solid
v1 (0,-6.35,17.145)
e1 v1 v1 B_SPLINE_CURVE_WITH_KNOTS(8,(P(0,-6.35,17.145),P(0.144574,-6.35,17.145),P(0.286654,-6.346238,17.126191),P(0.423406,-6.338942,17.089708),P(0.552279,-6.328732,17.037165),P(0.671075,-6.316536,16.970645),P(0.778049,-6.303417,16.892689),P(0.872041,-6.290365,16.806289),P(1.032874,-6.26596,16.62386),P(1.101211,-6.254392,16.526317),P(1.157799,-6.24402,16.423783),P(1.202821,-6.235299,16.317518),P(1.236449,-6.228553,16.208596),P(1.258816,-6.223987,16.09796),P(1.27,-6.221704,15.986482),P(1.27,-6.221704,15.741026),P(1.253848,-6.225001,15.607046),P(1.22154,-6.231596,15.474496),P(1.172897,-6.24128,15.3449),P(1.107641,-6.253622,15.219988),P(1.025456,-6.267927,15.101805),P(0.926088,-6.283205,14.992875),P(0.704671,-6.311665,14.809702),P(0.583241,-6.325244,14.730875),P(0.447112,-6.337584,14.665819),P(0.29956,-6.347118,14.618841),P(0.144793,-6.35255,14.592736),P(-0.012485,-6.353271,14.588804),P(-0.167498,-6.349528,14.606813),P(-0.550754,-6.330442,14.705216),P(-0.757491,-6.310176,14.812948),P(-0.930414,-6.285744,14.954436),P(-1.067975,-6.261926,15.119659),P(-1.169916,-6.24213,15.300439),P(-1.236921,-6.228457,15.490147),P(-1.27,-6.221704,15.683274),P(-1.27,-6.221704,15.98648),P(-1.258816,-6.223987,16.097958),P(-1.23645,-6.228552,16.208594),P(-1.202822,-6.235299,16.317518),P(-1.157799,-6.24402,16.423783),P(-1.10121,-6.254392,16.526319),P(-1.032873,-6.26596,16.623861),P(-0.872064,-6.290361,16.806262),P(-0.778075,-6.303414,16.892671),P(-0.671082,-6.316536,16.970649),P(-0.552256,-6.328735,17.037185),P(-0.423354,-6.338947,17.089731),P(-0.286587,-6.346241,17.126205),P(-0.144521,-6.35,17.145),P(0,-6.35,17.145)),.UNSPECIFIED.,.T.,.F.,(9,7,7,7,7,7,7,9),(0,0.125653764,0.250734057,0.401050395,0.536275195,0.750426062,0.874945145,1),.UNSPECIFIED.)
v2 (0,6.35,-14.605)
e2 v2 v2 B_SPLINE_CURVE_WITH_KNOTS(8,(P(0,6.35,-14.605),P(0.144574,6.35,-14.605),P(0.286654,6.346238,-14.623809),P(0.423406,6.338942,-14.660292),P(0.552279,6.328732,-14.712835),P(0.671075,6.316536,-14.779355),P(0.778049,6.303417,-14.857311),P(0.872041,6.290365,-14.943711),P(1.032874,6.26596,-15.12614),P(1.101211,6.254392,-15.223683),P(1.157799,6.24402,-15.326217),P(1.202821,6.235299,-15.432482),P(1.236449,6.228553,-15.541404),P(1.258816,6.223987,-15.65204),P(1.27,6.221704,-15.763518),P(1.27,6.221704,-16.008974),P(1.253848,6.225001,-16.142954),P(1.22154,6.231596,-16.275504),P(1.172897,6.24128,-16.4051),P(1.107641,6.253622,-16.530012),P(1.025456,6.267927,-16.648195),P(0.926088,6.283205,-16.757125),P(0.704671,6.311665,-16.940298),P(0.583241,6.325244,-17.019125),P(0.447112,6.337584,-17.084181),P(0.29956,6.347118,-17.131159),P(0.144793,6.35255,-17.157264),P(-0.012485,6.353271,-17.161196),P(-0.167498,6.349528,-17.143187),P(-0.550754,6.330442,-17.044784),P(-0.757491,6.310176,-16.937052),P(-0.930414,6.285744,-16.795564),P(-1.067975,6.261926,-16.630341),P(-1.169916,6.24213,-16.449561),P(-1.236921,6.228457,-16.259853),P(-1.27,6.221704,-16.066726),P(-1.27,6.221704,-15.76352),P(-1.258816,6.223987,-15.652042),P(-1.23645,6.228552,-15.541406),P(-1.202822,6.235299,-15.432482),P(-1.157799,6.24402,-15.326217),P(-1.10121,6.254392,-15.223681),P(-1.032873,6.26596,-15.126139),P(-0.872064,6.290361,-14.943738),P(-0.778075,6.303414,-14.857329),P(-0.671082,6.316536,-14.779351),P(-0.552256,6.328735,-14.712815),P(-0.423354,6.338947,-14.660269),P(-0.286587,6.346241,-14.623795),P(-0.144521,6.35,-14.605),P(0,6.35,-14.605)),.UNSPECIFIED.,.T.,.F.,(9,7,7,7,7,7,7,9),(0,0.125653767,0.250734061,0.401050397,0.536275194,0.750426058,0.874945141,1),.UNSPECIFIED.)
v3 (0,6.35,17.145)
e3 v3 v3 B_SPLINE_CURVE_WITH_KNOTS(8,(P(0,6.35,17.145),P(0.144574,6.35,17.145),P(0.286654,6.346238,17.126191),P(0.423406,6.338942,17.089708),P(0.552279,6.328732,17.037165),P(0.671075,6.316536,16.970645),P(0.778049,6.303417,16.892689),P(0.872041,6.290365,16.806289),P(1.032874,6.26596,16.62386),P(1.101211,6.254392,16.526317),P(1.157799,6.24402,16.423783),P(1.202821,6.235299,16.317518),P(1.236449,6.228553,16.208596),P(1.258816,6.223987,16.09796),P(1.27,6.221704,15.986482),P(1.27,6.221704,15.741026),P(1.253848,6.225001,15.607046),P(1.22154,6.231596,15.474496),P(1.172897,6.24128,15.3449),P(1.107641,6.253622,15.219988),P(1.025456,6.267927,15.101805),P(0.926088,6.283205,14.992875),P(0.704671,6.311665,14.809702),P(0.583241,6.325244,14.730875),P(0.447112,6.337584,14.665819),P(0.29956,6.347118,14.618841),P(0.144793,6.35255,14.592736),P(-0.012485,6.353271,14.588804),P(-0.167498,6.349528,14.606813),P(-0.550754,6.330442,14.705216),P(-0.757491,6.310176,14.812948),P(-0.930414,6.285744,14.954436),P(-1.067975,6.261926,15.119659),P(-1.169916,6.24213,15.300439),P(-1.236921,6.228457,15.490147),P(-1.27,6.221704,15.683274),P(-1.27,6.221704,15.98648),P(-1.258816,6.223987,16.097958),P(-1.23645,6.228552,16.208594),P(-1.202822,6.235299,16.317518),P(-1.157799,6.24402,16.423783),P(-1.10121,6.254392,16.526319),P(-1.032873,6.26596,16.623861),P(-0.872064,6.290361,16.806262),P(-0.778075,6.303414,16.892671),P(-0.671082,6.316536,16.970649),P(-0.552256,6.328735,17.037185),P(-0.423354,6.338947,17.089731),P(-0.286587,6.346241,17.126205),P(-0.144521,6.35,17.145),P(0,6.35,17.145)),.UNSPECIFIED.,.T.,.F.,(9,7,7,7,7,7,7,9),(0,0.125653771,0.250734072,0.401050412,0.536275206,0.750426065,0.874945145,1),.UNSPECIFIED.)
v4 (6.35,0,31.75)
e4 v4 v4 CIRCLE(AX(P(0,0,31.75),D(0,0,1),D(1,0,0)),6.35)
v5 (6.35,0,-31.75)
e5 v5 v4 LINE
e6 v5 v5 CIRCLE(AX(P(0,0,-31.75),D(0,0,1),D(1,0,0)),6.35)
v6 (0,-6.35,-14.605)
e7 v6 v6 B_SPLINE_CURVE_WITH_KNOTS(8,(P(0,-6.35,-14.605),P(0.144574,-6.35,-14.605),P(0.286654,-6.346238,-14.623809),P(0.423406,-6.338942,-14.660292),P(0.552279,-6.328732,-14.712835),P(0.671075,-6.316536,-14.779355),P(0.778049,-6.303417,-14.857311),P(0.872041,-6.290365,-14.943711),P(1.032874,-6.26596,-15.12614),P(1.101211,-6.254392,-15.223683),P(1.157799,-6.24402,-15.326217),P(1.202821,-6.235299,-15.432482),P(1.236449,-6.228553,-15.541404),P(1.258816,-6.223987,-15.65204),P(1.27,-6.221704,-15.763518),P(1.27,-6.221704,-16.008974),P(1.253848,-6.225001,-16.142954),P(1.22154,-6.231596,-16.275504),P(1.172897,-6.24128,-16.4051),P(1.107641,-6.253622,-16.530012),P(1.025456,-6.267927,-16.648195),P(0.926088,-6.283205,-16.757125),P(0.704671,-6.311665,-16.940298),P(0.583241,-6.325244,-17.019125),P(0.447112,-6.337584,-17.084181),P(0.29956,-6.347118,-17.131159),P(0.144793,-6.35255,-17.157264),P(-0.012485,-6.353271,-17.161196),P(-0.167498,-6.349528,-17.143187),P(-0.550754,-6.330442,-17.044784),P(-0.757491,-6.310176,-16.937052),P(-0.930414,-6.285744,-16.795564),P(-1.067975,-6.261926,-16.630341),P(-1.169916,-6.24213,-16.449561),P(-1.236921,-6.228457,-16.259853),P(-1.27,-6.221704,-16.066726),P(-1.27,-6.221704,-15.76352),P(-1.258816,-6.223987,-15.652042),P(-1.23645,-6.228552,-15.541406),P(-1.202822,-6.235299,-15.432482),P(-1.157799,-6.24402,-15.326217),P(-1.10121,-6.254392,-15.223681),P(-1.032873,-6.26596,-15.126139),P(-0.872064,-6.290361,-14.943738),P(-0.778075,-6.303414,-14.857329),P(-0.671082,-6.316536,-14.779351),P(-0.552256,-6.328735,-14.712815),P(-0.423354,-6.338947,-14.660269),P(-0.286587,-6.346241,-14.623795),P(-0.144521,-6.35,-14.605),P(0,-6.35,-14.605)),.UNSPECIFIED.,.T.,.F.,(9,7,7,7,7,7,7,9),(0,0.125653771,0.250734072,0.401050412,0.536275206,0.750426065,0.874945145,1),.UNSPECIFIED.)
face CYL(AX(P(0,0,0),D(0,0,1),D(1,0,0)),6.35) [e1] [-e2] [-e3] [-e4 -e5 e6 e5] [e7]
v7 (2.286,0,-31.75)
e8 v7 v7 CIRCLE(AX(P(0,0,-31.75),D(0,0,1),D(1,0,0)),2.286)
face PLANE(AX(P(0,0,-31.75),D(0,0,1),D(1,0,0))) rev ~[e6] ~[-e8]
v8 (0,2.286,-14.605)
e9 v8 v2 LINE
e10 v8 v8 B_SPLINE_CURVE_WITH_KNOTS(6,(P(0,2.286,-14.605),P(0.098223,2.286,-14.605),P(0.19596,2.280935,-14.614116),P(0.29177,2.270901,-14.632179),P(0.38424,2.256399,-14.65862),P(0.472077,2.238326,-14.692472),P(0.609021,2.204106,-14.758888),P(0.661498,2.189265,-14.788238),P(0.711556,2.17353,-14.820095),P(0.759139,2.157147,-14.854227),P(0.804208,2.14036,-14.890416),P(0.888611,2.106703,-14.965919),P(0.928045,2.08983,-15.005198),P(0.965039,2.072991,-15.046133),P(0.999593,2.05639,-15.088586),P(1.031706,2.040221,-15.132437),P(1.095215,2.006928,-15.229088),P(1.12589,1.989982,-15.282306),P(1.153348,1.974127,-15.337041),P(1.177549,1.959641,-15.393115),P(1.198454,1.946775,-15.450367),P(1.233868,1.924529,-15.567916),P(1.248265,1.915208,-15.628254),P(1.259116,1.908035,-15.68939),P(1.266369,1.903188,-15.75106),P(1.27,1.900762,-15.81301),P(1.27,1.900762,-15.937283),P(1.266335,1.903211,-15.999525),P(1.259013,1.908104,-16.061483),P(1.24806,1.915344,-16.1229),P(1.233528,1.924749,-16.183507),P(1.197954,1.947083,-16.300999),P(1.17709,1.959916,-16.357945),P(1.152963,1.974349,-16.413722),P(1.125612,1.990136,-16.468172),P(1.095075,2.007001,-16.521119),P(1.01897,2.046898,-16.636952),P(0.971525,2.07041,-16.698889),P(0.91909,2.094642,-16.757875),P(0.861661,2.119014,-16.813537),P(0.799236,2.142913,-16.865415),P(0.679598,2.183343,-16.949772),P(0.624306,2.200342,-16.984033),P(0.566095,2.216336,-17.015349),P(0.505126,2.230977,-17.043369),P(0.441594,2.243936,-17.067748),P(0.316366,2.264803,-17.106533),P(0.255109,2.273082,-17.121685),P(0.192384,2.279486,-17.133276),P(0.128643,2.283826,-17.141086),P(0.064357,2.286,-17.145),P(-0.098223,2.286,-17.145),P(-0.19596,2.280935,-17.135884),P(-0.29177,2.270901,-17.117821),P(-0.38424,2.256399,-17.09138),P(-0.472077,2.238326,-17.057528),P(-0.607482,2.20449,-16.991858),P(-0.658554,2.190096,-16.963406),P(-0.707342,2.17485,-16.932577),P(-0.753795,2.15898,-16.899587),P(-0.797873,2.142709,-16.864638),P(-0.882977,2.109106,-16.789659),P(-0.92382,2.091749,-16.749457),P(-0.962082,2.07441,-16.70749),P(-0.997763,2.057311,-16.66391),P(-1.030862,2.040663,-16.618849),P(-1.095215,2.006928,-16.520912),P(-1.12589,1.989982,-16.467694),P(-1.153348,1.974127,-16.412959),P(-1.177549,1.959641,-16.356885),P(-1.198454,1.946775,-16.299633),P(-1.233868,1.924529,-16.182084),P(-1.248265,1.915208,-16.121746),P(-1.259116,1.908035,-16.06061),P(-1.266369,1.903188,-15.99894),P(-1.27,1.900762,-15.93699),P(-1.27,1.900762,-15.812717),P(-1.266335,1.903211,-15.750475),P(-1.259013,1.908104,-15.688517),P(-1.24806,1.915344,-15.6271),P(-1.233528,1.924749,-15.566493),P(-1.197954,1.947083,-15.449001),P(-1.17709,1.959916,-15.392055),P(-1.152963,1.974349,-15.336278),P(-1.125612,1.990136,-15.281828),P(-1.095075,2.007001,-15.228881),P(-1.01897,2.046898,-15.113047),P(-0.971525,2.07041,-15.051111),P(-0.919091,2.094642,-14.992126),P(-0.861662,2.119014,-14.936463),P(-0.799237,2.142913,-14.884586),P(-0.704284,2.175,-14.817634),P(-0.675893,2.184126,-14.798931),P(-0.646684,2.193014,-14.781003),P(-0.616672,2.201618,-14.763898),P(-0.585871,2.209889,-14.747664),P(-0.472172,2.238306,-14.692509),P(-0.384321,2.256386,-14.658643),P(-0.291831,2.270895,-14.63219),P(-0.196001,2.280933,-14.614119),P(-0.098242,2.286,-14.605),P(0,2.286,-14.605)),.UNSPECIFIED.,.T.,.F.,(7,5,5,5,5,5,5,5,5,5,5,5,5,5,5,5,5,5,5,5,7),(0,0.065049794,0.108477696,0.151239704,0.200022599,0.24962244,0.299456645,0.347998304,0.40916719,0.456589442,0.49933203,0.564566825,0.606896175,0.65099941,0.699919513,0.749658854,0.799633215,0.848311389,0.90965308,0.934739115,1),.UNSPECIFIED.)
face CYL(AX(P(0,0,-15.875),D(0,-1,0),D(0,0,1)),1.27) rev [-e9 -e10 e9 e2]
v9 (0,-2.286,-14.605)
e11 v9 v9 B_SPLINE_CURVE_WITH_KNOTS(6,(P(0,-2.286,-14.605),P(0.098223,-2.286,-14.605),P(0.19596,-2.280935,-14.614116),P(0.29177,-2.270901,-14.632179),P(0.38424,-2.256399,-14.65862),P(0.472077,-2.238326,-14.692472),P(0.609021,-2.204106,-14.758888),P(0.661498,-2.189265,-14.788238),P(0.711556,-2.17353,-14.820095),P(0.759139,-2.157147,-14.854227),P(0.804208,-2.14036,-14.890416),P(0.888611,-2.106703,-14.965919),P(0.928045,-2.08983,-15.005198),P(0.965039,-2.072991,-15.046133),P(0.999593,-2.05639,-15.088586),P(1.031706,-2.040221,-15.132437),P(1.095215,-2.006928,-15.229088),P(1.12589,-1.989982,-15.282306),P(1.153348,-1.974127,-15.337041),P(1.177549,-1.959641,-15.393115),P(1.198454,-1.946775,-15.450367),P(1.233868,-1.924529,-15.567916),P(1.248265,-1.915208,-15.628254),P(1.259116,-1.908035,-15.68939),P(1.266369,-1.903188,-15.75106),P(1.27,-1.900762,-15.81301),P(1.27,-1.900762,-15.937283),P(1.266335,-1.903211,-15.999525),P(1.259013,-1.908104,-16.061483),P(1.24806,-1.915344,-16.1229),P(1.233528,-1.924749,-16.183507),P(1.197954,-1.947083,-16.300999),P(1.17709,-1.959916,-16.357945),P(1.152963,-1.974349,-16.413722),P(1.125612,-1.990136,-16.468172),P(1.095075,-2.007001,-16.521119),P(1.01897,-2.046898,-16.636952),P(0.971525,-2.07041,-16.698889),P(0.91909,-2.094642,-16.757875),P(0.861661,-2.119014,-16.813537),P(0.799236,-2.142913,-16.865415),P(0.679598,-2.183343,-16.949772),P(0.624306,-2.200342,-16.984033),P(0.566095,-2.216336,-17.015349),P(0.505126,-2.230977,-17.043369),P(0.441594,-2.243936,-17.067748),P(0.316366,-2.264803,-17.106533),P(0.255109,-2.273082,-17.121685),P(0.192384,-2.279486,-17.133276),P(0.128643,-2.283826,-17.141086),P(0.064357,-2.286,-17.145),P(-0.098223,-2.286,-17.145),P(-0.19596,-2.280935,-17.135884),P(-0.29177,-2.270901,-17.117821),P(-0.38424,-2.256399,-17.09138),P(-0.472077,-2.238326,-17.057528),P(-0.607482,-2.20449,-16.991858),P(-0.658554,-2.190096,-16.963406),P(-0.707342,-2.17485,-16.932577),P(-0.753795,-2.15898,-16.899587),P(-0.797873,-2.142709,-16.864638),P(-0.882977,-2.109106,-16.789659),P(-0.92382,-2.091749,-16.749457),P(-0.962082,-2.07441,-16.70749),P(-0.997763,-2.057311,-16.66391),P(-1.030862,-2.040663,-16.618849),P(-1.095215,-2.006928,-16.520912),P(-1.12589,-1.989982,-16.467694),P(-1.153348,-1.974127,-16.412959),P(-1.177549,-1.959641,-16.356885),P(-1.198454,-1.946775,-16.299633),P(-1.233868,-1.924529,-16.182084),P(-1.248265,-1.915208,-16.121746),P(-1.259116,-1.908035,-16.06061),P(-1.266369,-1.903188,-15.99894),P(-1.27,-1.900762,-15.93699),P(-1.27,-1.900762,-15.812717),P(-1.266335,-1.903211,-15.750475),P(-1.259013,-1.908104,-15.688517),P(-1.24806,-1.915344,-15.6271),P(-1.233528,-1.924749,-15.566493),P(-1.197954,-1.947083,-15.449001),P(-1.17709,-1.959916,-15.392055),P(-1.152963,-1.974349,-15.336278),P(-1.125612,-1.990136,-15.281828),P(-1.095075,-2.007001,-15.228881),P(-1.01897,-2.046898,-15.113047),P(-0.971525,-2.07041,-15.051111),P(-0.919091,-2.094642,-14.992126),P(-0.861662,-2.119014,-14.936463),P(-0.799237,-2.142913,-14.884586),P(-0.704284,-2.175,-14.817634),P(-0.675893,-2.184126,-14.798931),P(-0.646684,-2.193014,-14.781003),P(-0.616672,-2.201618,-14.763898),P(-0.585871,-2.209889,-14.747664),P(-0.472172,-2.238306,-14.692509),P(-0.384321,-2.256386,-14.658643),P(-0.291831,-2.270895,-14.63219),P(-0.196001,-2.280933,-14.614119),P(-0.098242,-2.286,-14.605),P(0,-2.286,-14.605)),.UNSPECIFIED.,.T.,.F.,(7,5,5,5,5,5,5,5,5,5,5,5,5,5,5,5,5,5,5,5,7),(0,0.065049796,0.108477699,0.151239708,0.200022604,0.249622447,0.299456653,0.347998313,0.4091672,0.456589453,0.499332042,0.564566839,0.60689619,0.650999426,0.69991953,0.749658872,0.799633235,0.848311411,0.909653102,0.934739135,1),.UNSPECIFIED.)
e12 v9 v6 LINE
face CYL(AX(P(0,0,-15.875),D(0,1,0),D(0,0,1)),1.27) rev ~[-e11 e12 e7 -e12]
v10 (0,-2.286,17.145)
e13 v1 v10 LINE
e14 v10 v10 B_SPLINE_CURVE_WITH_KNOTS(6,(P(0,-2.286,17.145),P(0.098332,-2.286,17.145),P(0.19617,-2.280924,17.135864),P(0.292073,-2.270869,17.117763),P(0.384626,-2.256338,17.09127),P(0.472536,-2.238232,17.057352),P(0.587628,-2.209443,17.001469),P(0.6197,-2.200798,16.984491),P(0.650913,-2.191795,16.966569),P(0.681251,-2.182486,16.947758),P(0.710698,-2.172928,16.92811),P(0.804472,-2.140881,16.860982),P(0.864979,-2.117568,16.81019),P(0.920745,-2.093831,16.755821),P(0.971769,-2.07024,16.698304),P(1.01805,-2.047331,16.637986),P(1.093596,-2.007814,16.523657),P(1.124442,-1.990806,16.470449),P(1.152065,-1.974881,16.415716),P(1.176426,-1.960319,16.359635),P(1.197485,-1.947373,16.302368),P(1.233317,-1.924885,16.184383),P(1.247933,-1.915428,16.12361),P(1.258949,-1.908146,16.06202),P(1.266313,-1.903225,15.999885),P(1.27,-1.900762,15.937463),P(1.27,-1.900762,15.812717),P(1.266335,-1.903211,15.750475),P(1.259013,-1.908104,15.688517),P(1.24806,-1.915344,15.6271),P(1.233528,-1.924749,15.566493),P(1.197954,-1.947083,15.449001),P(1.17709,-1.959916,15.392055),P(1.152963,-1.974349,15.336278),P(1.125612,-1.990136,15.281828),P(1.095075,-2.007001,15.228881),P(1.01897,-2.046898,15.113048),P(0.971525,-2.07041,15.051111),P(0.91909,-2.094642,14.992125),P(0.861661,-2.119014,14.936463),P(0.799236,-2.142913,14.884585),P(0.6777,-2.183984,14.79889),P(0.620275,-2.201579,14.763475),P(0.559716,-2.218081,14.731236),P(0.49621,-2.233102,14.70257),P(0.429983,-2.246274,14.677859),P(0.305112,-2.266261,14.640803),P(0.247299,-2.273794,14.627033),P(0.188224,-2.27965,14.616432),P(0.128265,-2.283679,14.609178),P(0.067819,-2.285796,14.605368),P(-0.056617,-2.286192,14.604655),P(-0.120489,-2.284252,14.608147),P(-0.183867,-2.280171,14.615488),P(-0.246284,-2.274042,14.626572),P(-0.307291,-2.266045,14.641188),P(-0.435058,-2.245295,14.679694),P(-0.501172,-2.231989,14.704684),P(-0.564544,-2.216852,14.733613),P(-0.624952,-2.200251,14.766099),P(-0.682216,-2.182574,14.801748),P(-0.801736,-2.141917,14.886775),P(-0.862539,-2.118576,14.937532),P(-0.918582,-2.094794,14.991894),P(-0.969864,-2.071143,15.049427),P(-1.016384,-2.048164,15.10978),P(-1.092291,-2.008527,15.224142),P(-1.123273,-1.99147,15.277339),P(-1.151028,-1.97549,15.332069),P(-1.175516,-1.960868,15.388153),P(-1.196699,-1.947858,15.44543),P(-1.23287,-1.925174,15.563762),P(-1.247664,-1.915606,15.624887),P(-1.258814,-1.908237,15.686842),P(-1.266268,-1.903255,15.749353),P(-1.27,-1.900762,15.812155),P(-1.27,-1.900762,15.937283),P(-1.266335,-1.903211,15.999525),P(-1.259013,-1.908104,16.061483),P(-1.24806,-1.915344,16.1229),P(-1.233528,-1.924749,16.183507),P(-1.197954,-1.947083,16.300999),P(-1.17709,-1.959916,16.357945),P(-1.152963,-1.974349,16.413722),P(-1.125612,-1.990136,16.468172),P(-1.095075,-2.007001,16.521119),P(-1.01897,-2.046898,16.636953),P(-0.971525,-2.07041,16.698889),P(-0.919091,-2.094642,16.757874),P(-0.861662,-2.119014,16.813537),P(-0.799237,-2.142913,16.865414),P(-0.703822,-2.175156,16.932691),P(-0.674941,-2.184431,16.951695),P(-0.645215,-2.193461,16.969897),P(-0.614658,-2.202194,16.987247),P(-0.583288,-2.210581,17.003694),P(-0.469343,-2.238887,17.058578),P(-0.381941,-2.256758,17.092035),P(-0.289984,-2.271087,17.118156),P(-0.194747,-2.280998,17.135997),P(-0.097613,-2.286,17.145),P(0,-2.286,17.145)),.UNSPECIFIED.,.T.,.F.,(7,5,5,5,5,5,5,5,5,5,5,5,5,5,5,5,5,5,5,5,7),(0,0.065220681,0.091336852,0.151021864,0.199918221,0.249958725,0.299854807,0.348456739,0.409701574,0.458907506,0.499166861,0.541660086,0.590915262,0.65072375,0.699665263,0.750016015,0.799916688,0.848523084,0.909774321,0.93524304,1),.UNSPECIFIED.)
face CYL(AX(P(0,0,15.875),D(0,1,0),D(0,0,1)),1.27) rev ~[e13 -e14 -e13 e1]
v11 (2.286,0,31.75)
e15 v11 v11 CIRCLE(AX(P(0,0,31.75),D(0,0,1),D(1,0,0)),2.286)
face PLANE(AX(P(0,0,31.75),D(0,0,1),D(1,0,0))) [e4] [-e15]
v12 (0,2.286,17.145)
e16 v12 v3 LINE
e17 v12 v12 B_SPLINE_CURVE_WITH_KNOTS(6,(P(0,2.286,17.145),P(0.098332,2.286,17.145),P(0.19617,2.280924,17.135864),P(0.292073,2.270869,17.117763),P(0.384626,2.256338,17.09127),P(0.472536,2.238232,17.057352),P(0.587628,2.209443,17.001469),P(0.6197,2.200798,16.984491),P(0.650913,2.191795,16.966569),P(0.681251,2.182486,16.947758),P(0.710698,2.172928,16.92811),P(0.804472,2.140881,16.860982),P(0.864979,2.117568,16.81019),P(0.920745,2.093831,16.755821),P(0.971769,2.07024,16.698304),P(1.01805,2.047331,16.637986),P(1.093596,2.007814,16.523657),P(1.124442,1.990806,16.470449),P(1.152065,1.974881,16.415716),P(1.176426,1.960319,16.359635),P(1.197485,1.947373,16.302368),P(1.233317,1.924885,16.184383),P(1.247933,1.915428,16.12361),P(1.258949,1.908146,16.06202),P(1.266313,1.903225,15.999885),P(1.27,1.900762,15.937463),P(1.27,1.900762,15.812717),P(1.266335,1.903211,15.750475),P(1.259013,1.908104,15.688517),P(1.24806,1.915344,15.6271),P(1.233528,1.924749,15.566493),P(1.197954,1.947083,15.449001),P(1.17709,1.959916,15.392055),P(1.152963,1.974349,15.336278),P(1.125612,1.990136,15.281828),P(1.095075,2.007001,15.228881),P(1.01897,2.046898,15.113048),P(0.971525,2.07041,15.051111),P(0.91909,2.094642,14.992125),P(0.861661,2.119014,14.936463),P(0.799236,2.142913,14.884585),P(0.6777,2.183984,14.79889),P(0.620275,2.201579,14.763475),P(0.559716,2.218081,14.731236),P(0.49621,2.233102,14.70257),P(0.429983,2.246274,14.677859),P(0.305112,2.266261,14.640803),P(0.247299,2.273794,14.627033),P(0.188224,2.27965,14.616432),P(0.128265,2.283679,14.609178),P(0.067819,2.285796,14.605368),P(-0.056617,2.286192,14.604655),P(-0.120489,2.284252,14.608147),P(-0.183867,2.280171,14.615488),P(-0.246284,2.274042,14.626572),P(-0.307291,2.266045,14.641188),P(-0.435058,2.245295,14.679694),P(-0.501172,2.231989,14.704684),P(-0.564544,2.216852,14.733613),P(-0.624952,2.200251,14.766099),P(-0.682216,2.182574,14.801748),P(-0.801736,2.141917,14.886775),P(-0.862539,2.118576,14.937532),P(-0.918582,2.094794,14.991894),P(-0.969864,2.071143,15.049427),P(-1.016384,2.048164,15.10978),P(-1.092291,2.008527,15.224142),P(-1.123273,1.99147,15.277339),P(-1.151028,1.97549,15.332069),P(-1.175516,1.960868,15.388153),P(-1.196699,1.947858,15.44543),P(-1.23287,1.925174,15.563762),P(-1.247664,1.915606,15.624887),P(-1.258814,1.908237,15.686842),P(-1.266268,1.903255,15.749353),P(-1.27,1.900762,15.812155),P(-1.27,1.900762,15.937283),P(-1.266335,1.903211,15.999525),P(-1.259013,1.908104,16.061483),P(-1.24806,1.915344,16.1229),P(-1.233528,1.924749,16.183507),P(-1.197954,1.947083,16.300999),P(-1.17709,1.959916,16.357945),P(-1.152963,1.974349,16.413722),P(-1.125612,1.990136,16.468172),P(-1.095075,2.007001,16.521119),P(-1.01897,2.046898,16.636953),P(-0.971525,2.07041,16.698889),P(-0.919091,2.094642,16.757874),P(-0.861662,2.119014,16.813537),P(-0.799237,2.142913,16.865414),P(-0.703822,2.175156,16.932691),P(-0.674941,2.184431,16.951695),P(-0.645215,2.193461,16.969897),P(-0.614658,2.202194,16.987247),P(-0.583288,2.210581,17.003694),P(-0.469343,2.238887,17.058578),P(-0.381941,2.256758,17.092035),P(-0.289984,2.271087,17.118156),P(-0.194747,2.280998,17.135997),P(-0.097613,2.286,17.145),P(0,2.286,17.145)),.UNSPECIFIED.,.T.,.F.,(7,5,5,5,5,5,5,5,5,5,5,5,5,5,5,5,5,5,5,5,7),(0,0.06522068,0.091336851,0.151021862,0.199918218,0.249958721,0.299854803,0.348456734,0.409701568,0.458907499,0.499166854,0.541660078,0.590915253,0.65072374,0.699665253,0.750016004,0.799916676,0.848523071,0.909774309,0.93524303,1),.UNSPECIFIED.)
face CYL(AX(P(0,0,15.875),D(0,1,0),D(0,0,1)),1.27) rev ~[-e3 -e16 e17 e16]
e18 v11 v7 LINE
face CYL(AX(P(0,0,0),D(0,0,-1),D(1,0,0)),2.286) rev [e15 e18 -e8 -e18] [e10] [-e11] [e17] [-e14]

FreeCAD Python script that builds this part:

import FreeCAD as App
import Part
import Sketcher
from FreeCAD import Vector
Q = App.Units.Quantity

doc = App.newDocument("Part")
body = doc.addObject("PartDesign::Body", "Body")

# Sketch on XY plane
sketch1 = body.newObject("Sketcher::SketchObject", "Sketch")
sketch1.AttachmentSupport = (doc.getObject("XY_Plane"), [""])
sketch1.MapMode = "FlatFace"
sketch1.addGeometry(Part.Circle(Vector(0, 0, 0), Vector(0, 0, 1), 6.35), False)
sketch1.addGeometry(Part.Circle(Vector(0, 0, 0), Vector(0, 0, 1), 2.286), False)
sketch1.addConstraint(Sketcher.Constraint("Coincident", 0, 3, -1, 1))
sketch1.addConstraint(Sketcher.Constraint("Coincident", 1, 3, -1, 1))
sketch1.addConstraint(Sketcher.Constraint("Diameter", 0, Q("0.5 in")))
sketch1.addConstraint(Sketcher.Constraint("Diameter", 1, Q("0.18 in")))
pad1 = body.newObject("PartDesign::Pad", "Pad")
pad1.Profile = sketch1
pad1.Length = Q("2.5 in")
pad1.Midplane = True

# Sketch on XZ plane
sketch2 = body.newObject("Sketcher::SketchObject", "Sketch001")
sketch2.AttachmentSupport = (doc.getObject("XZ_Plane"), [""])
sketch2.MapMode = "FlatFace"
sketch2.addGeometry(Part.Circle(Vector(0, -15.875, 0), Vector(0, 0, 1), 1.27), False)
sketch2.addGeometry(Part.Circle(Vector(0, 15.875, 0), Vector(0, 0, 1), 1.27), False)
sketch2.addConstraint(Sketcher.Constraint("Equal", 0, 1))
sketch2.addConstraint(Sketcher.Constraint("Symmetric", 0, 3, 1, 3, -1, 1))
sketch2.addConstraint(Sketcher.Constraint("PointOnObject", 0, 3, -2))
sketch2.addConstraint(Sketcher.Constraint("Diameter", 0, Q("0.1 in")))
sketch2.addConstraint(Sketcher.Constraint("DistanceY", 0, 3, 1, 3, Q("1.25 in")))
pocket1 = body.newObject("PartDesign::Pocket", "Pocket")
pocket1.Profile = sketch2
pocket1.Length = Q("2.5 in")
pocket1.Midplane = True

doc.recompute()
